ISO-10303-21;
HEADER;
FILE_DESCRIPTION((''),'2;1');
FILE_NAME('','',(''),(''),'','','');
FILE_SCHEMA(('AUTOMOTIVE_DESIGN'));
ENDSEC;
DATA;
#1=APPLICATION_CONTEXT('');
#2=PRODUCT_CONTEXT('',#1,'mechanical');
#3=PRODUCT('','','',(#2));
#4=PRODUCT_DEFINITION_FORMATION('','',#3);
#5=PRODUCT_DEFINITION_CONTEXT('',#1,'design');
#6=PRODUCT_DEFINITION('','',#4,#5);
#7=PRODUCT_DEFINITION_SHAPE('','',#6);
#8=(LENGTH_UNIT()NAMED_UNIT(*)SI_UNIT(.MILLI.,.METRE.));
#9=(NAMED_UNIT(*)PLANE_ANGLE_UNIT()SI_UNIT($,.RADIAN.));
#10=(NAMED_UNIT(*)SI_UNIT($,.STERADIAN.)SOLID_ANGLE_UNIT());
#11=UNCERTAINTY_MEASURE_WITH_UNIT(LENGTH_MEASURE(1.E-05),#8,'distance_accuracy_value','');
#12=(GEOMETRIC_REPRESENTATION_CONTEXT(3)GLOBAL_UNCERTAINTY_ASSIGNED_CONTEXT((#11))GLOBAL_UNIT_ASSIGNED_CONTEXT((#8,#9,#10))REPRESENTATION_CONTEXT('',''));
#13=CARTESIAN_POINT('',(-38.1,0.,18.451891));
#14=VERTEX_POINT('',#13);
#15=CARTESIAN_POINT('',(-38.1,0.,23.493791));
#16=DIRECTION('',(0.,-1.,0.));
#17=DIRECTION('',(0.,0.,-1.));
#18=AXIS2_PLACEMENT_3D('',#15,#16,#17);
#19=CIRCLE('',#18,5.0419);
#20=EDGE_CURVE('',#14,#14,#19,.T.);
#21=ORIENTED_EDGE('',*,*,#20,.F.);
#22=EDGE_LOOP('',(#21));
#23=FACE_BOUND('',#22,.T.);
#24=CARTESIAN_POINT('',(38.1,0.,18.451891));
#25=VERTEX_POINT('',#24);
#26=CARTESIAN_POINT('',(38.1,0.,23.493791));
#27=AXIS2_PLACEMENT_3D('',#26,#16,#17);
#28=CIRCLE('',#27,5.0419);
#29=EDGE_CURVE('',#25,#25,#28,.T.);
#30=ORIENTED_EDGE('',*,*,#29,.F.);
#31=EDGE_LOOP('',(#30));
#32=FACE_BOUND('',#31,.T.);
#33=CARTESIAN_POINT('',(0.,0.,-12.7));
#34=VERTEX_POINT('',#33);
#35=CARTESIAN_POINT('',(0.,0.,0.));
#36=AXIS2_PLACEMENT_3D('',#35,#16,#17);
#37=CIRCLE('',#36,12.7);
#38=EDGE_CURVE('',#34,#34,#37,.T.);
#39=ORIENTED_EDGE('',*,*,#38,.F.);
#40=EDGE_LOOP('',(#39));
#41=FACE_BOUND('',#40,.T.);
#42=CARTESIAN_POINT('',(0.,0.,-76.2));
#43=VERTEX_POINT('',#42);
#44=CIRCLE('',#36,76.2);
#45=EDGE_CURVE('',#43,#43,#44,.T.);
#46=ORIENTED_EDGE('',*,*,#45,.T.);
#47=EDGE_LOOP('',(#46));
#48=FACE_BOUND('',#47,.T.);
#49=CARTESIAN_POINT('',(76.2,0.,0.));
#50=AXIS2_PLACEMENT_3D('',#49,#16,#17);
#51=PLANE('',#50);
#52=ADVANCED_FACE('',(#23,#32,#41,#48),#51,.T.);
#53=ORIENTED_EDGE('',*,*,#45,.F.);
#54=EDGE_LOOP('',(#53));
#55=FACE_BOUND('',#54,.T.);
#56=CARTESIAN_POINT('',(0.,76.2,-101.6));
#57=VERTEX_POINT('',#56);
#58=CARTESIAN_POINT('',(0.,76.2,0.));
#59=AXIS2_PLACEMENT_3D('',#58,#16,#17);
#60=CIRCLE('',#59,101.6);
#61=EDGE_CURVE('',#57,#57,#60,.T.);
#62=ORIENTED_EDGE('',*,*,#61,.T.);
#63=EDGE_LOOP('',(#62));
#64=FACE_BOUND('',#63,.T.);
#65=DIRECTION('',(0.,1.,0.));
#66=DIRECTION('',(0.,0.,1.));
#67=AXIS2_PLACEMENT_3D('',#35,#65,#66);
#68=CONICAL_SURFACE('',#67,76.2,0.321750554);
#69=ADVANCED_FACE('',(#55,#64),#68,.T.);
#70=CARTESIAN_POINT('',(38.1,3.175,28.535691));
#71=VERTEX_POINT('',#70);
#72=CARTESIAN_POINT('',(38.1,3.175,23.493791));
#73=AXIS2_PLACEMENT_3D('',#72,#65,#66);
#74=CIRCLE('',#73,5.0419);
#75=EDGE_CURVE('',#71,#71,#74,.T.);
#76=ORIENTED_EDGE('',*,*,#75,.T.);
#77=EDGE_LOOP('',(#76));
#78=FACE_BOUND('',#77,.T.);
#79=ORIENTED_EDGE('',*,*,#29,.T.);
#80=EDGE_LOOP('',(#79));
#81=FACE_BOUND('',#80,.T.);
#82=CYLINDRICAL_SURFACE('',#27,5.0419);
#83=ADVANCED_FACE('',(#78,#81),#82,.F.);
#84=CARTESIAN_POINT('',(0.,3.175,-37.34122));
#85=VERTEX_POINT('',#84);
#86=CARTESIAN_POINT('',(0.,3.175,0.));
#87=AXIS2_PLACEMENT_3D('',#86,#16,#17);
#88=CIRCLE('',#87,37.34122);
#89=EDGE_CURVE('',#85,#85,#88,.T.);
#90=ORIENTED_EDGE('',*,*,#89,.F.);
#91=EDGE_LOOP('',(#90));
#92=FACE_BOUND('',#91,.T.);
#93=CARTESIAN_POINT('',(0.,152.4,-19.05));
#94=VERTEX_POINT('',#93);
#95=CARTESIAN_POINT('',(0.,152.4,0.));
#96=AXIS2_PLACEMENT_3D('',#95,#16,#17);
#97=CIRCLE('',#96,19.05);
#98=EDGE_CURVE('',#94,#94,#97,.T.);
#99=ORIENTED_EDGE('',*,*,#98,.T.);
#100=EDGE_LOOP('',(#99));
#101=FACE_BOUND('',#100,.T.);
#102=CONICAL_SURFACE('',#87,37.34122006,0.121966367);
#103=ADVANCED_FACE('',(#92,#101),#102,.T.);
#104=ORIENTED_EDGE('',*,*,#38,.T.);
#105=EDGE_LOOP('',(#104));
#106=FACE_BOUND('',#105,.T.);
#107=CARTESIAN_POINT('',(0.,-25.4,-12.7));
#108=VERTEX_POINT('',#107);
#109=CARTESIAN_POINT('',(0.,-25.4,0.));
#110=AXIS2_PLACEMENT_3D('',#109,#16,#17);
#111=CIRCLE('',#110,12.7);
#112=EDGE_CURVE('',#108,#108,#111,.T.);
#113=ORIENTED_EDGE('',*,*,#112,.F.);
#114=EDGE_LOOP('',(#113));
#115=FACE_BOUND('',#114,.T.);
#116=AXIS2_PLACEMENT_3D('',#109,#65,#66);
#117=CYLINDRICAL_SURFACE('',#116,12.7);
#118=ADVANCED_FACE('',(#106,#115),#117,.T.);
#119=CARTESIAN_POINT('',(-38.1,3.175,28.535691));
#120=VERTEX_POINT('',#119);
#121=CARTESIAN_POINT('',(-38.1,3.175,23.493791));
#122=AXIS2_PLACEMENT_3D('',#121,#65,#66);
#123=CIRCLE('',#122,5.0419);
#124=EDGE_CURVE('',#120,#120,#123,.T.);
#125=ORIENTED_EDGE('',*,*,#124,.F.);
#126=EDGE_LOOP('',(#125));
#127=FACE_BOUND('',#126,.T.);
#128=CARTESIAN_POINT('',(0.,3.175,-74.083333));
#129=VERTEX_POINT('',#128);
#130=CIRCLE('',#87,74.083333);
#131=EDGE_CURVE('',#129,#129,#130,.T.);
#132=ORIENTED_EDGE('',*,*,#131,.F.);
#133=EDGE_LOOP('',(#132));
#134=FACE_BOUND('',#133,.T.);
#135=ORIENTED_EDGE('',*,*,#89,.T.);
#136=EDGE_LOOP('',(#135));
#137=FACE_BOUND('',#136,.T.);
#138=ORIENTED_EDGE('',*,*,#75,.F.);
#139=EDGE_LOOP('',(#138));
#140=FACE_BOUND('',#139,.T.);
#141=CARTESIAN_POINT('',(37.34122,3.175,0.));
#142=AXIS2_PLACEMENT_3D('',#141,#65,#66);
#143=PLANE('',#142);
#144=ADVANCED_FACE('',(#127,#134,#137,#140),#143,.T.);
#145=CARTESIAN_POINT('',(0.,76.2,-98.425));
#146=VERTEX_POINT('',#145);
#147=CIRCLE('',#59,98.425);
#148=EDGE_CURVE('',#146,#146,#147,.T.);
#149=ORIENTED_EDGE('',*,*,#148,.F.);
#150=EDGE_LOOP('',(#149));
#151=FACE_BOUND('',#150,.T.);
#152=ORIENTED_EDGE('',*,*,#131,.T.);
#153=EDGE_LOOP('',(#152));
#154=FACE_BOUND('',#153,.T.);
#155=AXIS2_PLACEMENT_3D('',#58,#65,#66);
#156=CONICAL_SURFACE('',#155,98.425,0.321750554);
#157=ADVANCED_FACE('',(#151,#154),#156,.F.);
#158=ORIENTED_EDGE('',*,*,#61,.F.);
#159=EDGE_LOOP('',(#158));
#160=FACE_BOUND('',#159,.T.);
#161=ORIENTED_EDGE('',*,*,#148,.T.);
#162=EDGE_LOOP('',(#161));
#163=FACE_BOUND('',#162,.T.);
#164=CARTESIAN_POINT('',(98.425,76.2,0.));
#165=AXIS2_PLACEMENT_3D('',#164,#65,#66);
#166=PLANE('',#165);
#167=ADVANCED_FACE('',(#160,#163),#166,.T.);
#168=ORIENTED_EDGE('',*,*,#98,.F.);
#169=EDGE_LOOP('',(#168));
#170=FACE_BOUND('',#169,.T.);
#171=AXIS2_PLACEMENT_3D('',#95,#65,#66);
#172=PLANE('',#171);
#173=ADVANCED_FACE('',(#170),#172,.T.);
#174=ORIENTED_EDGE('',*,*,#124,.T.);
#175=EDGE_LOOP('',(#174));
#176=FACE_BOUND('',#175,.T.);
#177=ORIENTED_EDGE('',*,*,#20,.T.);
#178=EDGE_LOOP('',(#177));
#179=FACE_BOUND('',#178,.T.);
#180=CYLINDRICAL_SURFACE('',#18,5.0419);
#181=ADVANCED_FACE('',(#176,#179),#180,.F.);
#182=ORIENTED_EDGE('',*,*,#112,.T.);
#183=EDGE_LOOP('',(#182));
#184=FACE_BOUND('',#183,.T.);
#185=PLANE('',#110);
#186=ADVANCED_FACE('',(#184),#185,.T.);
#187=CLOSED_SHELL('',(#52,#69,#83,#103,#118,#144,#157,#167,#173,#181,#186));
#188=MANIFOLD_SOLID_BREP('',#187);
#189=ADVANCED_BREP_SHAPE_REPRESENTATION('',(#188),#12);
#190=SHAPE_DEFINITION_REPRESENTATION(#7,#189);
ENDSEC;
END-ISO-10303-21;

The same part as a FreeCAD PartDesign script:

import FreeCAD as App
import Part
import Sketcher

V = App.Vector
Q = App.Units.Quantity


def add_polygon(sketch, points):
    """Adds a closed chain of lines whose ends are joined by coincident constraints."""
    first, n = sketch.GeometryCount, len(points)
    for a, b in zip(points, points[1:] + points[:1]):
        sketch.addGeometry(Part.LineSegment(App.Vector(*a, 0), App.Vector(*b, 0)), False)
    for i in range(n):
        sketch.addConstraint(Sketcher.Constraint("Coincident", first + i, 2, first + (i + 1) % n, 1))

doc = App.newDocument("Part")
body = doc.addObject("PartDesign::Body", "Body")

sketch1 = body.newObject("Sketcher::SketchObject", "Sketch")
sketch1.AttachmentSupport = (doc.getObject("XY_Plane"), [""])
sketch1.MapMode = "FlatFace"
add_polygon(sketch1, [(19.1, 152.4), (0, 152.4), (0, 0), (76.2, 0), (101.6, 76.2), (98.4, 76.2), (74.1, 3.2), (37.3, 3.2)])
sketch1.addConstraint([
    Sketcher.Constraint("Horizontal", 0),
    Sketcher.Constraint("Vertical", 1),
    Sketcher.Constraint("Horizontal", 2),
    Sketcher.Constraint("Horizontal", 4),
    Sketcher.Constraint("Horizontal", 6),
    Sketcher.Constraint("Coincident", 1, 2, -1, 1),
    Sketcher.Constraint("Parallel", 3, 5),
    Sketcher.Constraint("DistanceX", 2, 1, 2, 2, Q("3 in")),
    Sketcher.Constraint("DistanceY", 1, 2, 1, 1, Q("6 in")),
    Sketcher.Constraint("DistanceX", -1, 1, 3, 2, Q("4 in")),
    Sketcher.Constraint("DistanceY", -1, 1, 3, 2, Q("3 in")),
    Sketcher.Constraint("DistanceX", 0, 2, 0, 1, Q("0.75 in")),
    Sketcher.Constraint("DistanceX", 4, 2, 4, 1, Q("0.125 in")),
    Sketcher.Constraint("DistanceY", -1, 1, 5, 2, Q("0.125 in")),
    Sketcher.Constraint("Distance", 7, 150.341842),
])
revolution = body.newObject("PartDesign::Revolution", "Revolution")
revolution.Profile = sketch1
revolution.ReferenceAxis = (sketch1, ["V_Axis"])
revolution.Angle = 360

sketch2 = body.newObject("Sketcher::SketchObject", "Sketch001")
sketch2.AttachmentSupport = (doc.getObject("XZ_Plane"), [""])
sketch2.MapMode = "FlatFace"
sketch2.addGeometry([
    Part.Circle(V(-38, 23, 0), V(0, 0, 1), 5),
    Part.Circle(V(38, 23, 0), V(0, 0, 1), 5),
], False)
sketch2.addConstraint([
    Sketcher.Constraint("Equal", 0, 1),
    Sketcher.Constraint("Symmetric", 0, 3, 1, 3, -2),
    Sketcher.Constraint("Diameter", 0, Q("0.397 in")),
    Sketcher.Constraint("DistanceX", 0, 3, 1, 3, Q("3 in")),
    Sketcher.Constraint("DistanceY", -1, 1, 0, 3, 23.493791),
])
doc.recompute()
hole = body.newObject("PartDesign::Hole", "Hole")
hole.Profile = sketch2
hole.ThreadType = "None"
hole.Diameter = Q("0.397 in")
hole.DepthType = "ThroughAll"

sketch3 = body.newObject("Sketcher::SketchObject", "Sketch002")
sketch3.AttachmentSupport = (doc.getObject("XZ_Plane"), [""])
sketch3.MapMode = "FlatFace"
sketch3.addGeometry(Part.Circle(V(0, 0, 0), V(0, 0, 1), 13), False)
sketch3.addConstraint([
    Sketcher.Constraint("Coincident", 0, 3, -1, 1),
    Sketcher.Constraint("Diameter", 0, Q("1 in")),
])
pad1 = body.newObject("PartDesign::Pad", "Pad")
pad1.Profile = sketch3
pad1.Length = Q("1 in")

doc.recompute()
